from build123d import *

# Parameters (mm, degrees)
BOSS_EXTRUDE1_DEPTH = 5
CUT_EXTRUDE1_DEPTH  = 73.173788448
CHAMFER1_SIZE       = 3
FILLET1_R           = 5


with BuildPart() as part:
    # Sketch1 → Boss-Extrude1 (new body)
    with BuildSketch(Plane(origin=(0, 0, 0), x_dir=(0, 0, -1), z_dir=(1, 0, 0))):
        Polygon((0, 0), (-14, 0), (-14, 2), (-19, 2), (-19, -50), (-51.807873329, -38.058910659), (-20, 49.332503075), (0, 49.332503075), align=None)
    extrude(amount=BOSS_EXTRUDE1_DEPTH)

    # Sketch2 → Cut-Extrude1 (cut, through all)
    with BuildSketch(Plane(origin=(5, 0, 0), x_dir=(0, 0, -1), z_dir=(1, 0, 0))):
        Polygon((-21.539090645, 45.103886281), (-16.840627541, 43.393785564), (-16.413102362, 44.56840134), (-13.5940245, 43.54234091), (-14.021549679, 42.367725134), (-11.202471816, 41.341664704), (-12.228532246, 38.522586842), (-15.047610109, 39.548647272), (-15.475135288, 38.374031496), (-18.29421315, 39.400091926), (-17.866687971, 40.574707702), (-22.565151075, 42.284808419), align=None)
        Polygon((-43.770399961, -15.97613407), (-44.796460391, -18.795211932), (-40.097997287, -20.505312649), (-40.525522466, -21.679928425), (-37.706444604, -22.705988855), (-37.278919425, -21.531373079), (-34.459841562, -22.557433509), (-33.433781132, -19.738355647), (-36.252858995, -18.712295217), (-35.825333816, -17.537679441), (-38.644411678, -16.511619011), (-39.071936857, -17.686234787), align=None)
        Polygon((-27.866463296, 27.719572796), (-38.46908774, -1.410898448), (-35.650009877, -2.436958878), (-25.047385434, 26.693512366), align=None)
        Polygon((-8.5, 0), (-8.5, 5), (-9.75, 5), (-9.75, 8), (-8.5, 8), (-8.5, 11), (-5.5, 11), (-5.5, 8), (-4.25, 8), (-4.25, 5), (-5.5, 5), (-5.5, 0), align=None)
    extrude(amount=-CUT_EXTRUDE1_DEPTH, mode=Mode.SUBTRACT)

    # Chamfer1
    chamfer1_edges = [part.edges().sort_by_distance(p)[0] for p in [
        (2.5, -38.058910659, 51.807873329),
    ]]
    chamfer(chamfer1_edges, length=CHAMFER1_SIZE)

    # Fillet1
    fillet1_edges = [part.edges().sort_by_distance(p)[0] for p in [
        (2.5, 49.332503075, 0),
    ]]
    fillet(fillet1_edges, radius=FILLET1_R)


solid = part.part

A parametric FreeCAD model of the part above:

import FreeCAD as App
import Part
import Sketcher
from FreeCAD import Vector
Q = App.Units.Quantity


def edges_at(feature, points):
    """Names of the edges that pass closest to the given points."""
    edges = feature.Shape.Edges
    near = lambda p: min(range(len(edges)), key=lambda i: edges[i].distToShape(Part.Vertex(*p))[0])
    return sorted({f"Edge{near(p) + 1}" for p in points})

doc = App.newDocument("Part")
params = doc.addObject("Spreadsheet::Sheet", "Params")
for row, (alias, value) in enumerate([
    ("sketch1_width", "52 mm"),
    ("sketch1_width2", "2 mm"),
    ("sketch1_height", "14 mm"),
    ("sketch1_height2", "20 mm"),
    ("sketch1_height3", "5 mm"),
    ("pad1_length", "5 mm"),
    ("sketch2_width", "5 mm"),
    ("sketch2_width2", "3 mm"),
    ("sketch2_length", "5 mm"),
    ("sketch2_length2", "3 mm"),
    ("sketch2_length3", "31 mm"),
    ("chamfer_size", "3 mm"),
    ("fillet_radius", "5 mm"),
], start=1):
    params.set(f"A{row}", alias)
    params.set(f"B{row}", "=" + value)
    params.setAlias(f"B{row}", alias)

body = doc.addObject("PartDesign::Body", "Body")

# Sketch on YZ plane
sketch1 = body.newObject("Sketcher::SketchObject", "Sketch")
sketch1.AttachmentSupport = (doc.getObject("YZ_Plane"), [""])
sketch1.MapMode = "FlatFace"
sketch1.addGeometry([
    Part.LineSegment(Vector(0, 14, 0), Vector(0, 0, 0)),  # 0
    Part.LineSegment(Vector(0, 0, 0), Vector(49.3, 0, 0)),  # 1
    Part.LineSegment(Vector(49.3, 0, 0), Vector(49.3, 20, 0)),  # 2
    Part.LineSegment(Vector(49.3, 20, 0), Vector(-38.1, 51.8, 0)),  # 3
    Part.LineSegment(Vector(-38.1, 51.8, 0), Vector(-50, 19, 0)),  # 4
    Part.LineSegment(Vector(-50, 19, 0), Vector(2, 19, 0)),  # 5
    Part.LineSegment(Vector(2, 19, 0), Vector(2, 14, 0)),  # 6
    Part.LineSegment(Vector(2, 14, 0), Vector(0, 14, 0)),  # 7
], False)
sketch1.addConstraint([
    Sketcher.Constraint("Coincident", 0, 2, 1, 1),
    Sketcher.Constraint("Coincident", 1, 2, 2, 1),
    Sketcher.Constraint("Coincident", 2, 2, 3, 1),
    Sketcher.Constraint("Coincident", 3, 2, 4, 1),
    Sketcher.Constraint("Coincident", 4, 2, 5, 1),
    Sketcher.Constraint("Coincident", 5, 2, 6, 1),
    Sketcher.Constraint("Coincident", 6, 2, 7, 1),
    Sketcher.Constraint("Coincident", 7, 2, 0, 1),
    Sketcher.Constraint("Vertical", 0),
    Sketcher.Constraint("Horizontal", 1),
    Sketcher.Constraint("Vertical", 2),
    Sketcher.Constraint("Horizontal", 5),
    Sketcher.Constraint("Vertical", 6),
    Sketcher.Constraint("Horizontal", 7),
    Sketcher.Constraint("Coincident", 0, 2, -1, 1),
    Sketcher.Constraint("Perpendicular", 3, 4),
    Sketcher.Constraint("DistanceX", 5, 1, 5, 2, 52.0),
    Sketcher.Constraint("DistanceX", 7, 2, 7, 1, 2.0),
    Sketcher.Constraint("DistanceY", 0, 2, 0, 1, 14.0),
    Sketcher.Constraint("DistanceY", 2, 1, 2, 2, 20.0),
    Sketcher.Constraint("DistanceY", 6, 2, 6, 1, 5.0),
    Sketcher.Constraint("Angle", 3, Q("160 deg")),
    Sketcher.Constraint("Distance", 3, 93.0),
])
sketch1.setExpression("Constraints[16]", "Params.sketch1_width")
sketch1.setExpression("Constraints[17]", "Params.sketch1_width2")
sketch1.setExpression("Constraints[18]", "Params.sketch1_height")
sketch1.setExpression("Constraints[19]", "Params.sketch1_height2")
sketch1.setExpression("Constraints[20]", "Params.sketch1_height3")
pad1 = body.newObject("PartDesign::Pad", "Pad")
pad1.Profile = sketch1
pad1.setExpression("Length", "Params.pad1_length")

# Sketch on YZ plane
sketch2 = body.newObject("Sketcher::SketchObject", "Sketch001")
sketch2.AttachmentSupport = (doc.getObject("YZ_Plane"), [""])
sketch2.MapMode = "FlatFace"
sketch2.AttachmentOffset = App.Placement(Vector(0, 0, 5), App.Rotation())
sketch2.addGeometry([
    Part.LineSegment(Vector(43.4, 16.8, 0), Vector(45.1, 21.5, 0)),  # 0
    Part.LineSegment(Vector(45.1, 21.5, 0), Vector(42.3, 22.6, 0)),  # 1
    Part.LineSegment(Vector(42.3, 22.6, 0), Vector(40.6, 17.9, 0)),  # 2
    Part.LineSegment(Vector(40.6, 17.9, 0), Vector(39.4, 18.3, 0)),  # 3
    Part.LineSegment(Vector(39.4, 18.3, 0), Vector(38.4, 15.5, 0)),  # 4
    Part.LineSegment(Vector(38.4, 15.5, 0), Vector(39.5, 15, 0)),  # 5
    Part.LineSegment(Vector(39.5, 15, 0), Vector(38.5, 12.2, 0)),  # 6
    Part.LineSegment(Vector(38.5, 12.2, 0), Vector(41.3, 11.2, 0)),  # 7
    Part.LineSegment(Vector(41.3, 11.2, 0), Vector(42.4, 14, 0)),  # 8
    Part.LineSegment(Vector(42.4, 14, 0), Vector(43.5, 13.6, 0)),  # 9
    Part.LineSegment(Vector(43.5, 13.6, 0), Vector(44.6, 16.4, 0)),  # 10
    Part.LineSegment(Vector(44.6, 16.4, 0), Vector(43.4, 16.8, 0)),  # 11
    Part.LineSegment(Vector(-16, 43.8, 0), Vector(-18.8, 44.8, 0)),  # 12
    Part.LineSegment(Vector(-18.8, 44.8, 0), Vector(-20.5, 40.1, 0)),  # 13
    Part.LineSegment(Vector(-20.5, 40.1, 0), Vector(-21.7, 40.5, 0)),  # 14
    Part.LineSegment(Vector(-21.7, 40.5, 0), Vector(-22.7, 37.7, 0)),  # 15
    Part.LineSegment(Vector(-22.7, 37.7, 0), Vector(-21.5, 37.3, 0)),  # 16
    Part.LineSegment(Vector(-21.5, 37.3, 0), Vector(-22.6, 34.5, 0)),  # 17
    Part.LineSegment(Vector(-22.6, 34.5, 0), Vector(-19.7, 33.4, 0)),  # 18
    Part.LineSegment(Vector(-19.7, 33.4, 0), Vector(-18.7, 36.3, 0)),  # 19
    Part.LineSegment(Vector(-18.7, 36.3, 0), Vector(-17.5, 35.8, 0)),  # 20
    Part.LineSegment(Vector(-17.5, 35.8, 0), Vector(-16.5, 38.6, 0)),  # 21
    Part.LineSegment(Vector(-16.5, 38.6, 0), Vector(-17.7, 39.1, 0)),  # 22
    Part.LineSegment(Vector(-17.7, 39.1, 0), Vector(-16, 43.8, 0)),  # 23
    Part.LineSegment(Vector(27.7, 27.9, 0), Vector(-1.4, 38.5, 0)),  # 24
    Part.LineSegment(Vector(-1.4, 38.5, 0), Vector(-2.4, 35.7, 0)),  # 25
    Part.LineSegment(Vector(-2.4, 35.7, 0), Vector(26.7, 25, 0)),  # 26
    Part.LineSegment(Vector(26.7, 25, 0), Vector(27.7, 27.9, 0)),  # 27
    Part.LineSegment(Vector(5, 8.5, 0), Vector(0, 8.5, 0)),  # 28
    Part.LineSegment(Vector(0, 8.5, 0), Vector(0, 5.5, 0)),  # 29
    Part.LineSegment(Vector(0, 5.5, 0), Vector(5, 5.5, 0)),  # 30
    Part.LineSegment(Vector(5, 5.5, 0), Vector(5, 4.2, 0)),  # 31
    Part.LineSegment(Vector(5, 4.2, 0), Vector(8, 4.2, 0)),  # 32
    Part.LineSegment(Vector(8, 4.2, 0), Vector(8, 5.5, 0)),  # 33
    Part.LineSegment(Vector(8, 5.5, 0), Vector(11, 5.5, 0)),  # 34
    Part.LineSegment(Vector(11, 5.5, 0), Vector(11, 8.5, 0)),  # 35
    Part.LineSegment(Vector(11, 8.5, 0), Vector(8, 8.5, 0)),  # 36
    Part.LineSegment(Vector(8, 8.5, 0), Vector(8, 9.8, 0)),  # 37
    Part.LineSegment(Vector(8, 9.8, 0), Vector(5, 9.8, 0)),  # 38
    Part.LineSegment(Vector(5, 9.8, 0), Vector(5, 8.5, 0)),  # 39
], False)
sketch2.addConstraint([
    Sketcher.Constraint("Coincident", 0, 2, 1, 1),
    Sketcher.Constraint("Coincident", 1, 2, 2, 1),
    Sketcher.Constraint("Coincident", 2, 2, 3, 1),
    Sketcher.Constraint("Coincident", 3, 2, 4, 1),
    Sketcher.Constraint("Coincident", 4, 2, 5, 1),
    Sketcher.Constraint("Coincident", 5, 2, 6, 1),
    Sketcher.Constraint("Coincident", 6, 2, 7, 1),
    Sketcher.Constraint("Coincident", 7, 2, 8, 1),
    Sketcher.Constraint("Coincident", 8, 2, 9, 1),
    Sketcher.Constraint("Coincident", 9, 2, 10, 1),
    Sketcher.Constraint("Coincident", 10, 2, 11, 1),
    Sketcher.Constraint("Coincident", 11, 2, 0, 1),
    Sketcher.Constraint("Coincident", 12, 2, 13, 1),
    Sketcher.Constraint("Coincident", 13, 2, 14, 1),
    Sketcher.Constraint("Coincident", 14, 2, 15, 1),
    Sketcher.Constraint("Coincident", 15, 2, 16, 1),
    Sketcher.Constraint("Coincident", 16, 2, 17, 1),
    Sketcher.Constraint("Coincident", 17, 2, 18, 1),
    Sketcher.Constraint("Coincident", 18, 2, 19, 1),
    Sketcher.Constraint("Coincident", 19, 2, 20, 1),
    Sketcher.Constraint("Coincident", 20, 2, 21, 1),
    Sketcher.Constraint("Coincident", 21, 2, 22, 1),
    Sketcher.Constraint("Coincident", 22, 2, 23, 1),
    Sketcher.Constraint("Coincident", 23, 2, 12, 1),
    Sketcher.Constraint("Coincident", 24, 2, 25, 1),
    Sketcher.Constraint("Coincident", 25, 2, 26, 1),
    Sketcher.Constraint("Coincident", 26, 2, 27, 1),
    Sketcher.Constraint("Coincident", 27, 2, 24, 1),
    Sketcher.Constraint("Coincident", 28, 2, 29, 1),
    Sketcher.Constraint("Coincident", 29, 2, 30, 1),
    Sketcher.Constraint("Coincident", 30, 2, 31, 1),
    Sketcher.Constraint("Coincident", 31, 2, 32, 1),
    Sketcher.Constraint("Coincident", 32, 2, 33, 1),
    Sketcher.Constraint("Coincident", 33, 2, 34, 1),
    Sketcher.Constraint("Coincident", 34, 2, 35, 1),
    Sketcher.Constraint("Coincident", 35, 2, 36, 1),
    Sketcher.Constraint("Coincident", 36, 2, 37, 1),
    Sketcher.Constraint("Coincident", 37, 2, 38, 1),
    Sketcher.Constraint("Coincident", 38, 2, 39, 1),
    Sketcher.Constraint("Coincident", 39, 2, 28, 1),
    Sketcher.Constraint("Horizontal", 28),
    Sketcher.Constraint("Vertical", 29),
    Sketcher.Constraint("Horizontal", 30),
    Sketcher.Constraint("Vertical", 31),
    Sketcher.Constraint("Horizontal", 32),
    Sketcher.Constraint("Vertical", 33),
    Sketcher.Constraint("Horizontal", 34),
    Sketcher.Constraint("Vertical", 35),
    Sketcher.Constraint("Horizontal", 36),
    Sketcher.Constraint("Vertical", 37),
    Sketcher.Constraint("Horizontal", 38),
    Sketcher.Constraint("Vertical", 39),
    Sketcher.Constraint("PointOnObject", 28, 2, -2),
    Sketcher.Constraint("Perpendicular", 0, 1),
    Sketcher.Constraint("Perpendicular", 1, 2),
    Sketcher.Constraint("Perpendicular", 2, 3),
    Sketcher.Constraint("Perpendicular", 3, 4),
    Sketcher.Constraint("Perpendicular", 4, 5),
    Sketcher.Constraint("Perpendicular", 5, 6),
    Sketcher.Constraint("Perpendicular", 6, 7),
    Sketcher.Constraint("Perpendicular", 7, 8),
    Sketcher.Constraint("Perpendicular", 8, 9),
    Sketcher.Constraint("Perpendicular", 9, 10),
    Sketcher.Constraint("Perpendicular", 10, 11),
    Sketcher.Constraint("Parallel", 11, 12),
    Sketcher.Constraint("Perpendicular", 12, 13),
    Sketcher.Constraint("Perpendicular", 13, 14),
    Sketcher.Constraint("Perpendicular", 14, 15),
    Sketcher.Constraint("Perpendicular", 15, 16),
    Sketcher.Constraint("Perpendicular", 16, 17),
    Sketcher.Constraint("Perpendicular", 17, 18),
    Sketcher.Constraint("Perpendicular", 18, 19),
    Sketcher.Constraint("Perpendicular", 19, 20),
    Sketcher.Constraint("Perpendicular", 20, 21),
    Sketcher.Constraint("Perpendicular", 21, 22),
    Sketcher.Constraint("Perpendicular", 22, 23),
    Sketcher.Constraint("Perpendicular", 23, 24),
    Sketcher.Constraint("Perpendicular", 24, 25),
    Sketcher.Constraint("Perpendicular", 25, 26),
    Sketcher.Constraint("Perpendicular", 26, 27),
    Sketcher.Constraint("Horizontal", 30, 2, 33, 2),
    Sketcher.Constraint("Horizontal", 28, 2, 35, 2),
    Sketcher.Constraint("Vertical", 33, 2, 36, 2),
    Sketcher.Constraint("Vertical", 31, 2, 38, 2),
    Sketcher.Constraint("Equal", 32, 34),
    Sketcher.Constraint("Equal", 38, 29),
    Sketcher.Constraint("Equal", 33, 37),
    Sketcher.Constraint("Equal", 0, 2),
    Sketcher.Constraint("Equal", 1, 4),
    Sketcher.Constraint("Equal", 3, 5),
    Sketcher.Constraint("Equal", 4, 6),
    Sketcher.Constraint("Equal", 6, 7),
    Sketcher.Constraint("Equal", 7, 8),
    Sketcher.Constraint("Equal", 5, 9),
    Sketcher.Constraint("Equal", 10, 12),
    Sketcher.Constraint("Equal", 2, 13),
    Sketcher.Constraint("Equal", 11, 14),
    Sketcher.Constraint("Equal", 12, 15),
    Sketcher.Constraint("Equal", 14, 16),
    Sketcher.Constraint("Equal", 15, 17),
    Sketcher.Constraint("Equal", 17, 18),
    Sketcher.Constraint("Equal", 18, 19),
    Sketcher.Constraint("Equal", 16, 20),
    Sketcher.Constraint("Equal", 19, 21),
    Sketcher.Constraint("Equal", 21, 25),
    Sketcher.Constraint("DistanceX", 28, 2, 28, 1, 5.0),
    Sketcher.Constraint("DistanceX", 32, 1, 32, 2, 3.0),
    Sketcher.Constraint("Angle", 0, Q("70 deg")),
    Sketcher.Constraint("Distance", 0, 5.0),
    Sketcher.Constraint("Distance", 1, 3.0),
    Sketcher.Constraint("Distance", 24, 31.0),
    Sketcher.Constraint("DistanceY", 31, 2, 31, 1, 1.25),
    Sketcher.Constraint("DistanceY", -1, 1, 28, 2, 8.5),
    Sketcher.Constraint("Distance", 3, 1.25),
    Sketcher.Constraint("DistanceX", -1, 1, 10, 2, 44.568401),
    Sketcher.Constraint("DistanceY", -1, 1, 23, 2, 43.7704),
    Sketcher.Constraint("DistanceX", 24, 2, -1, 1, 1.410898),
    Sketcher.Constraint("DistanceY", 25, 2, 21, 2, 2.994402),
    Sketcher.Constraint("DistanceY", -1, 1, 0, 2, 21.539091),
    Sketcher.Constraint("DistanceX", 12, 2, -1, 1, 18.795212),
])
sketch2.setExpression("Constraints[105]", "Params.sketch2_width")
sketch2.setExpression("Constraints[106]", "Params.sketch2_width2")
sketch2.setExpression("Constraints[108]", "Params.sketch2_length")
sketch2.setExpression("Constraints[109]", "Params.sketch2_length2")
sketch2.setExpression("Constraints[110]", "Params.sketch2_length3")
pocket1 = body.newObject("PartDesign::Pocket", "Pocket")
pocket1.Profile = sketch2
pocket1.Type = "ThroughAll"
doc.recompute()

chamfer = body.newObject("PartDesign::Chamfer", "Chamfer")
chamfer.Base = (pocket1, edges_at(pocket1, [(2.5, -38.059, 51.808)]))
chamfer.setExpression("Size", "Params.chamfer_size")
doc.recompute()

fillet = body.newObject("PartDesign::Fillet", "Fillet")
fillet.Base = (chamfer, edges_at(chamfer, [(2.5, 49.333, 0)]))
fillet.setExpression("Radius", "Params.fillet_radius")

doc.recompute()
